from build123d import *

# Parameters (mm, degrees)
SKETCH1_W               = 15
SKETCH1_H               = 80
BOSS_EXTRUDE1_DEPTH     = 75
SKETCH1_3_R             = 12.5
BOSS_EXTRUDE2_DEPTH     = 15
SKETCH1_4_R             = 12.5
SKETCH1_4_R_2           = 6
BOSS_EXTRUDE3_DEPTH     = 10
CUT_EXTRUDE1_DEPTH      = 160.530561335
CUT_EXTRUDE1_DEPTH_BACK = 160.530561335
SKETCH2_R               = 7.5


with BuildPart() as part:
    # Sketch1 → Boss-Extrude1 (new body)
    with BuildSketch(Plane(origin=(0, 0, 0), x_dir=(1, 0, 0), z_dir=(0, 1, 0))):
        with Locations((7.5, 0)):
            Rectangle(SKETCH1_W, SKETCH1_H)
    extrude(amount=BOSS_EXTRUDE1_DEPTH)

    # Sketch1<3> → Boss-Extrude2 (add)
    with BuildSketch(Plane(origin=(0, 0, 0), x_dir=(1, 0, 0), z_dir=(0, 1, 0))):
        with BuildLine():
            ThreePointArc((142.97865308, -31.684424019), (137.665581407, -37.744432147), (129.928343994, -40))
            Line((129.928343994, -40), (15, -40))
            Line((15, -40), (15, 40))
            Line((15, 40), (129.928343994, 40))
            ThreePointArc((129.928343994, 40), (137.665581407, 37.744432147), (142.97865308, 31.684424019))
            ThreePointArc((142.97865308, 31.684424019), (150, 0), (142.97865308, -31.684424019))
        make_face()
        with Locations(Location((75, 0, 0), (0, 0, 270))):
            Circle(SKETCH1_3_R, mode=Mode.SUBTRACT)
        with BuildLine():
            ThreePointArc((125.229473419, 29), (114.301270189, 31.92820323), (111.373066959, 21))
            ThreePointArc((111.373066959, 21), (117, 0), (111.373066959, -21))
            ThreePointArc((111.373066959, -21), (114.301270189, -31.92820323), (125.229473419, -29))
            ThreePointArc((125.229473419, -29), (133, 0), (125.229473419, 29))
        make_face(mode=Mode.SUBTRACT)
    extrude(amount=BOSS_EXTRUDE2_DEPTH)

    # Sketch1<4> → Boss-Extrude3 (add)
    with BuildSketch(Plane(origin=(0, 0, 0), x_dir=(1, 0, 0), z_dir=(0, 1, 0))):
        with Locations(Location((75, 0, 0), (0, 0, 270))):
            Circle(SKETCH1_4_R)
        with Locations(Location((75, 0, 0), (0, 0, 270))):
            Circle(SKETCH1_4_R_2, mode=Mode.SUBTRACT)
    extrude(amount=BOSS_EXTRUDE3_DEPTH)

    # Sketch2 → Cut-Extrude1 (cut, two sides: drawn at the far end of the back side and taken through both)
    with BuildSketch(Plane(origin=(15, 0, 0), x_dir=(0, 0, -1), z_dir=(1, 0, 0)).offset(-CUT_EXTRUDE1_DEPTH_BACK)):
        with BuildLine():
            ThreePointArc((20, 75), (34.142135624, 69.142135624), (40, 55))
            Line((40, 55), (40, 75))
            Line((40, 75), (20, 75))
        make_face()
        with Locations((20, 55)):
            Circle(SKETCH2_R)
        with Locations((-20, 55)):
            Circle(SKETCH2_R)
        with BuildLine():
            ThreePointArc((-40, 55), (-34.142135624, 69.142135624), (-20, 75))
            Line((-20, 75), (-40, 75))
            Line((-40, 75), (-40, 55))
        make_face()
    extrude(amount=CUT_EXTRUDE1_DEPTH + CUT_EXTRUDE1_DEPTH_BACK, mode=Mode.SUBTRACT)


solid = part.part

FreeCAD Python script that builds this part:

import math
import FreeCAD as App
import Part
import Sketcher
Q = App.Units.Quantity

doc = App.newDocument("Part")
body = doc.addObject("PartDesign::Body", "Body")

# Sketch on XZ plane
sketch1 = doc.addObject("Sketcher::SketchObject", "Sketch")
body.addObject(sketch1)
sketch1.AttachmentSupport = (doc.XZ_Plane, [""])
sketch1.MapMode = "FlatFace"
sketch1.addGeometry([
    Part.LineSegment(App.Vector(0, -40, 0), App.Vector(0, 40, 0)),
    Part.LineSegment(App.Vector(0, 40, 0), App.Vector(15, 40, 0)),
    Part.LineSegment(App.Vector(15, 40, 0), App.Vector(15, -40, 0)),
    Part.LineSegment(App.Vector(15, -40, 0), App.Vector(0, -40, 0)),
], False)
sketch1.addConstraint([
    Sketcher.Constraint("Coincident", 0, 2, 1, 1),
    Sketcher.Constraint("Coincident", 1, 2, 2, 1),
    Sketcher.Constraint("Coincident", 2, 2, 3, 1),
    Sketcher.Constraint("Coincident", 3, 2, 0, 1),
    Sketcher.Constraint("Vertical", 0),
    Sketcher.Constraint("Horizontal", 1),
    Sketcher.Constraint("Vertical", 2),
    Sketcher.Constraint("Horizontal", 3),
    Sketcher.Constraint("Symmetric", 0, 2, 3, 2, -1, 1),
    Sketcher.Constraint("DistanceX", 1, 1, 1, 2, Q("15 mm")),
    Sketcher.Constraint("DistanceY", 0, 1, 0, 2, Q("80 mm")),
])
pad1 = doc.addObject("PartDesign::Pad", "Pad")
body.addObject(pad1)
pad1.Profile = sketch1
pad1.Length = 75
pad1.Reversed = True

# Sketch on XZ plane
sketch2 = doc.addObject("Sketcher::SketchObject", "Sketch001")
body.addObject(sketch2)
sketch2.AttachmentSupport = (doc.XZ_Plane, [""])
sketch2.MapMode = "FlatFace"
sketch2.addGeometry([
    Part.ArcOfCircle(Part.Circle(App.Vector(129.928344, 25.601757, 0), App.Vector(0, 0, 1), 14.398243), math.radians(24.989931), math.radians(90)),  # 0
    Part.ArcOfCircle(Part.Circle(App.Vector(75, 0, 0), App.Vector(0, 0, 1), 75), math.radians(-24.989931), math.radians(24.989931)),  # 1
    Part.ArcOfCircle(Part.Circle(App.Vector(129.928344, -25.601757, 0), App.Vector(0, 0, 1), 14.398243), math.radians(-90), math.radians(-24.989931)),  # 2
    Part.LineSegment(App.Vector(129.928344, -40, 0), App.Vector(15, -40, 0)),  # 3
    Part.LineSegment(App.Vector(15, -40, 0), App.Vector(15, 40, 0)),  # 4
    Part.LineSegment(App.Vector(15, 40, 0), App.Vector(129.928344, 40, 0)),  # 5
    Part.Circle(App.Vector(75, 0, 0), App.Vector(0, 0, 1), 12.5),  # 6
    Part.ArcOfCircle(Part.Circle(App.Vector(75, 0, 0), App.Vector(0, 0, 1), 58), math.radians(-30), math.radians(30)),  # 7
    Part.ArcOfCircle(Part.Circle(App.Vector(118.30127, 25, 0), App.Vector(0, 0, 1), 8), math.radians(30), math.radians(210)),  # 8
    Part.ArcOfCircle(Part.Circle(App.Vector(75, 0, 0), App.Vector(0, 0, 1), 42), math.radians(-30), math.radians(30)),  # 9
    Part.ArcOfCircle(Part.Circle(App.Vector(118.30127, -25, 0), App.Vector(0, 0, 1), 8), math.radians(150), math.radians(330)),  # 10
], False)
sketch2.addConstraint([
    Sketcher.Constraint("Tangent", 0, 1, 1, 2),
    Sketcher.Constraint("Tangent", 1, 1, 2, 2),
    Sketcher.Constraint("Tangent", 2, 1, 3, 1),
    Sketcher.Constraint("Coincident", 3, 2, 4, 1),
    Sketcher.Constraint("Coincident", 4, 2, 5, 1),
    Sketcher.Constraint("Tangent", 5, 2, 0, 2),
    Sketcher.Constraint("Tangent", 7, 2, 8, 1),
    Sketcher.Constraint("Tangent", 8, 2, 9, 2),
    Sketcher.Constraint("Tangent", 9, 1, 10, 1),
    Sketcher.Constraint("Tangent", 10, 2, 7, 1),
    Sketcher.Constraint("Horizontal", 3),
    Sketcher.Constraint("Vertical", 4),
    Sketcher.Constraint("Horizontal", 5),
    Sketcher.Constraint("Coincident", 6, 3, 1, 3),
    Sketcher.Constraint("Coincident", 7, 3, 1, 3),
    Sketcher.Constraint("Coincident", 9, 3, 1, 3),
    Sketcher.Constraint("Equal", 0, 2),
    Sketcher.Constraint("Symmetric", 0, 3, 2, 3, -1),
    Sketcher.Constraint("Vertical", 8, 3, 10, 3),
    Sketcher.Constraint("Diameter", 6, Q("25 mm")),
    Sketcher.Constraint("Radius", 1, Q("75 mm")),
    Sketcher.Constraint("Radius", 7, Q("58 mm")),
    Sketcher.Constraint("Radius", 8, Q("8 mm")),
    Sketcher.Constraint("DistanceY", 4, 1, 4, 2, Q("80 mm")),
    Sketcher.Constraint("DistanceX", -1, 1, 1, 3, Q("75 mm")),
    Sketcher.Constraint("DistanceY", -1, 1, 8, 3, Q("25 mm")),
    Sketcher.Constraint("DistanceX", -1, 1, 3, 2, Q("15 mm")),
    Sketcher.Constraint("Radius", 0, Q("14.398243 mm")),
])
pad2 = doc.addObject("PartDesign::Pad", "Pad001")
body.addObject(pad2)
pad2.Profile = sketch2
pad2.Length = 15
pad2.Reversed = True

# Sketch on XZ plane
sketch3 = doc.addObject("Sketcher::SketchObject", "Sketch002")
body.addObject(sketch3)
sketch3.AttachmentSupport = (doc.XZ_Plane, [""])
sketch3.MapMode = "FlatFace"
sketch3.addGeometry([
    Part.Circle(App.Vector(75, 0, 0), App.Vector(0, 0, 1), 12.5),
    Part.Circle(App.Vector(75, 0, 0), App.Vector(0, 0, 1), 6),
], False)
sketch3.addConstraint([
    Sketcher.Constraint("Coincident", 1, 3, 0, 3),
    Sketcher.Constraint("PointOnObject", 0, 3, -1),
    Sketcher.Constraint("Diameter", 0, Q("25 mm")),
    Sketcher.Constraint("Diameter", 1, Q("12 mm")),
    Sketcher.Constraint("DistanceX", -1, 1, 0, 3, Q("75 mm")),
])
pad3 = doc.addObject("PartDesign::Pad", "Pad002")
body.addObject(pad3)
pad3.Profile = sketch3
pad3.Length = 10
pad3.Reversed = True

# Sketch on YZ plane
sketch4 = doc.addObject("Sketcher::SketchObject", "Sketch003")
body.addObject(sketch4)
sketch4.AttachmentSupport = (doc.YZ_Plane, [""])
sketch4.MapMode = "FlatFace"
sketch4.AttachmentOffset = App.Placement(App.Vector(0, 0, 15), App.Rotation())
sketch4.addGeometry([
    Part.ArcOfCircle(Part.Circle(App.Vector(55, -20, 0), App.Vector(0, 0, 1), 20), math.radians(-90), math.radians(0)),  # 0
    Part.LineSegment(App.Vector(55, -40, 0), App.Vector(75, -40, 0)),  # 1
    Part.LineSegment(App.Vector(75, -40, 0), App.Vector(75, -20, 0)),  # 2
    Part.Circle(App.Vector(55, -20, 0), App.Vector(0, 0, 1), 7.5),  # 3
    Part.Circle(App.Vector(55, 20, 0), App.Vector(0, 0, 1), 7.5),  # 4
    Part.ArcOfCircle(Part.Circle(App.Vector(55, 20, 0), App.Vector(0, 0, 1), 20), math.radians(0), math.radians(90)),  # 5
    Part.LineSegment(App.Vector(75, 20, 0), App.Vector(75, 40, 0)),  # 6
    Part.LineSegment(App.Vector(75, 40, 0), App.Vector(55, 40, 0)),  # 7
], False)
sketch4.addConstraint([
    Sketcher.Constraint("Tangent", 0, 1, 1, 1),
    Sketcher.Constraint("Coincident", 1, 2, 2, 1),
    Sketcher.Constraint("Tangent", 2, 2, 0, 2),
    Sketcher.Constraint("Tangent", 5, 1, 6, 1),
    Sketcher.Constraint("Coincident", 6, 2, 7, 1),
    Sketcher.Constraint("Tangent", 7, 2, 5, 2),
    Sketcher.Constraint("Horizontal", 1),
    Sketcher.Constraint("Vertical", 2),
    Sketcher.Constraint("Vertical", 6),
    Sketcher.Constraint("Horizontal", 7),
    Sketcher.Constraint("Coincident", 3, 3, 0, 3),
    Sketcher.Constraint("Coincident", 5, 3, 4, 3),
    Sketcher.Constraint("Equal", 3, 4),
    Sketcher.Constraint("Equal", 0, 5),
    Sketcher.Constraint("Symmetric", 0, 3, 4, 3, -1),
    Sketcher.Constraint("Diameter", 3, Q("15 mm")),
    Sketcher.Constraint("Radius", 0, Q("20 mm")),
    Sketcher.Constraint("DistanceX", -1, 1, 0, 3, Q("55 mm")),
    Sketcher.Constraint("DistanceY", 0, 3, -1, 1, Q("20 mm")),
])
pocket1 = doc.addObject("PartDesign::Pocket", "Pocket")
body.addObject(pocket1)
pocket1.Profile = sketch4
pocket1.Type = "ThroughAll"
pocket1.Midplane = True

doc.recompute()
